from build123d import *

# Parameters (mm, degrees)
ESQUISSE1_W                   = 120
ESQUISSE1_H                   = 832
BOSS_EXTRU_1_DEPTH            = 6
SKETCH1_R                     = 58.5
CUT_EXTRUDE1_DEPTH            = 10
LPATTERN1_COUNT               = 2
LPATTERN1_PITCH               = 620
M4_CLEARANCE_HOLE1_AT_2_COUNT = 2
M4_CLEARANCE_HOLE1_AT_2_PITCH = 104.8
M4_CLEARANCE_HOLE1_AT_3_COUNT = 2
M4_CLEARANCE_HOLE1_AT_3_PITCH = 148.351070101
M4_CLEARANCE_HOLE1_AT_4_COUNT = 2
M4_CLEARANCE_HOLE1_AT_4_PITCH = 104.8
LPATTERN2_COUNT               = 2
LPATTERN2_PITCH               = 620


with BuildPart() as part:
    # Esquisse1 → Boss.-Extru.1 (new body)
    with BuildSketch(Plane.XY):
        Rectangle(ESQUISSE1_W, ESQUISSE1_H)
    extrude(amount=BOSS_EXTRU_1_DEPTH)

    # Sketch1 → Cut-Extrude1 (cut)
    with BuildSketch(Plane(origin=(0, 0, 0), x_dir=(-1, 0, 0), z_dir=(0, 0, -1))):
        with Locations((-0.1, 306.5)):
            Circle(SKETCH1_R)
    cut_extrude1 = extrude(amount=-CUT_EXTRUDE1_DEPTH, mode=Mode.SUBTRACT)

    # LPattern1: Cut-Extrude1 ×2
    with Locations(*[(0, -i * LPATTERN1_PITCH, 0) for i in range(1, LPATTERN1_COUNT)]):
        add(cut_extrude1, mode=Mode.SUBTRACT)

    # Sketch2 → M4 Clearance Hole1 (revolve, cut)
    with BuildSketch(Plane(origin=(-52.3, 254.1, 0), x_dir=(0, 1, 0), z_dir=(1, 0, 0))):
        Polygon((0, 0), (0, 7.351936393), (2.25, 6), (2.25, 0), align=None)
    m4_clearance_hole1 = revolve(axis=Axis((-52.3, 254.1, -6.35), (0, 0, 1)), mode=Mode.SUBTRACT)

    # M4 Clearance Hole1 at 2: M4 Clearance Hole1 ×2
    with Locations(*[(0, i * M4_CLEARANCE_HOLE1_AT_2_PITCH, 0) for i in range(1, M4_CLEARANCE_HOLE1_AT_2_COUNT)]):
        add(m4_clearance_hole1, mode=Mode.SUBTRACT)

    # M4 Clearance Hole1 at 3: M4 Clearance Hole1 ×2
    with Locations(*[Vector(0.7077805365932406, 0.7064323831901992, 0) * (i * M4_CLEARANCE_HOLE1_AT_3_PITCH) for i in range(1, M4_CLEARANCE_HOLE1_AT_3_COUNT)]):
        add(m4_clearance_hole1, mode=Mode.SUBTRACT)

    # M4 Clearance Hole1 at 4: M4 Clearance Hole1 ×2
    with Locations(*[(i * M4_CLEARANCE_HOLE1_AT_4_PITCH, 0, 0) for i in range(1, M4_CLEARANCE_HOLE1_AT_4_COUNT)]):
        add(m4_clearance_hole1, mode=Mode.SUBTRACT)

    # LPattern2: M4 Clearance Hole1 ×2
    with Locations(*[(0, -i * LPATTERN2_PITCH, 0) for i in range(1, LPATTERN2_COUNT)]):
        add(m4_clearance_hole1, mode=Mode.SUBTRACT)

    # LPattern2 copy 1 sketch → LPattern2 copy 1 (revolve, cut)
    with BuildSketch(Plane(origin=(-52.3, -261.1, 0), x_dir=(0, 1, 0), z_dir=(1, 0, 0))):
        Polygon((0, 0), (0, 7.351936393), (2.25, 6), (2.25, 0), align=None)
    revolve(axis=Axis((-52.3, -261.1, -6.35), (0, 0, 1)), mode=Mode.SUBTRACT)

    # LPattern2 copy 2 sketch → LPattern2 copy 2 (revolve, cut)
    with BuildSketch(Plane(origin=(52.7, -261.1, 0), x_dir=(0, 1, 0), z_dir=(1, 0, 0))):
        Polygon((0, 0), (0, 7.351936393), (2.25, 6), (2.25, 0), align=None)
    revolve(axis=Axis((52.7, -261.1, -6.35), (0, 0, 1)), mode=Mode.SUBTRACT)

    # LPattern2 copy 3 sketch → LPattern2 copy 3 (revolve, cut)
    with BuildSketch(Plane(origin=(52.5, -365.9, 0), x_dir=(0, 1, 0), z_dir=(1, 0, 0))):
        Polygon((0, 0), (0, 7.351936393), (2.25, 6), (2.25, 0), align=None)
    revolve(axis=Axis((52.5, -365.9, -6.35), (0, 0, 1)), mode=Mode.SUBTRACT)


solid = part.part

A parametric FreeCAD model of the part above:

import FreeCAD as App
import Part
import Sketcher

V = App.Vector
Q = App.Units.Quantity

doc = App.newDocument("Part")
body = doc.addObject("PartDesign::Body", "Body")

# Sketch on XY plane
sketch1 = body.newObject("Sketcher::SketchObject", "Sketch")
sketch1.AttachmentSupport = (doc.getObject("XY_Plane"), [""])
sketch1.MapMode = "FlatFace"
sketch1.addGeometry(Part.LineSegment(V(-60, 416, 0), V(-60, -416, 0)), False)
sketch1.addGeometry(Part.LineSegment(V(-60, -416, 0), V(60, -416, 0)), False)
sketch1.addGeometry(Part.LineSegment(V(60, -416, 0), V(60, 416, 0)), False)
sketch1.addGeometry(Part.LineSegment(V(60, 416, 0), V(-60, 416, 0)), False)
sketch1.addConstraint(Sketcher.Constraint("Coincident", 0, 2, 1, 1))
sketch1.addConstraint(Sketcher.Constraint("Coincident", 1, 2, 2, 1))
sketch1.addConstraint(Sketcher.Constraint("Coincident", 2, 2, 3, 1))
sketch1.addConstraint(Sketcher.Constraint("Coincident", 3, 2, 0, 1))
sketch1.addConstraint(Sketcher.Constraint("Vertical", 0))
sketch1.addConstraint(Sketcher.Constraint("Horizontal", 1))
sketch1.addConstraint(Sketcher.Constraint("Vertical", 2))
sketch1.addConstraint(Sketcher.Constraint("Horizontal", 3))
sketch1.addConstraint(Sketcher.Constraint("Symmetric", 0, 2, 2, 2, -1, 1))
sketch1.addConstraint(Sketcher.Constraint("DistanceX", 1, 1, 1, 2, 120.0))
sketch1.addConstraint(Sketcher.Constraint("DistanceY", 0, 2, 0, 1, 832.0))
pad1 = body.newObject("PartDesign::Pad", "Pad")
pad1.Profile = sketch1
pad1.Length = 6

# Sketch on XY plane
sketch2 = body.newObject("Sketcher::SketchObject", "Sketch001")
sketch2.AttachmentSupport = (doc.getObject("XY_Plane"), [""])
sketch2.MapMode = "FlatFace"
sketch2.addGeometry(Part.Circle(V(0, 306, 0), V(0, 0, 1), 58), False)
sketch2.addConstraint(Sketcher.Constraint("Diameter", 0, 117.0))
sketch2.addConstraint(Sketcher.Constraint("DistanceX", -1, 1, 0, 3, 0.1))
sketch2.addConstraint(Sketcher.Constraint("DistanceY", -1, 1, 0, 3, 306.5))
pocket1 = body.newObject("PartDesign::Pocket", "Pocket")
pocket1.Profile = sketch2
pocket1.Length = 10
pocket1.Reversed = True
doc.recompute()

linearpattern = body.newObject("PartDesign::LinearPattern", "LinearPattern")
linearpattern.Originals = [pocket1]
linearpattern.Direction = (doc.getObject("Y_Axis"), [""])
linearpattern.Mode = "offset"
linearpattern.Offset = 620
linearpattern.Occurrences = 2
linearpattern.Reversed = True
body.Tip = linearpattern

# Sketch on YZ plane
sketch3 = body.newObject("Sketcher::SketchObject", "Sketch002")
sketch3.AttachmentSupport = (doc.getObject("YZ_Plane"), [""])
sketch3.MapMode = "FlatFace"
sketch3.AttachmentOffset = App.Placement(V(0, 0, -52.3), App.Rotation())
sketch3.addGeometry(Part.LineSegment(V(254.1, 7.4, 0), V(254.1, 0, 0)), False)
sketch3.addGeometry(Part.LineSegment(V(254.1, 0, 0), V(256.4, 0, 0)), False)
sketch3.addGeometry(Part.LineSegment(V(256.4, 0, 0), V(256.4, 6, 0)), False)
sketch3.addGeometry(Part.LineSegment(V(256.4, 6, 0), V(254.1, 7.4, 0)), False)
sketch3.addGeometry(Part.LineSegment(V(254.1, 0, 0), V(254.1, 7.4, 0)), True)  # axis
sketch3.addConstraint(Sketcher.Constraint("Coincident", 0, 2, 1, 1))
sketch3.addConstraint(Sketcher.Constraint("Coincident", 1, 2, 2, 1))
sketch3.addConstraint(Sketcher.Constraint("Coincident", 2, 2, 3, 1))
sketch3.addConstraint(Sketcher.Constraint("Coincident", 3, 2, 0, 1))
sketch3.addConstraint(Sketcher.Constraint("Vertical", 0))
sketch3.addConstraint(Sketcher.Constraint("Horizontal", 1))
sketch3.addConstraint(Sketcher.Constraint("Vertical", 2))
sketch3.addConstraint(Sketcher.Constraint("Vertical", 4))
sketch3.addConstraint(Sketcher.Constraint("Coincident", 4, 1, 0, 2))
sketch3.addConstraint(Sketcher.Constraint("PointOnObject", 0, 2, -1))
sketch3.addConstraint(Sketcher.Constraint("Equal", 0, 4))
sketch3.addConstraint(Sketcher.Constraint("DistanceY", 2, 1, 2, 2, 6.0))
sketch3.addConstraint(Sketcher.Constraint("Angle", 3, Q("149 deg")))
sketch3.addConstraint(Sketcher.Constraint("DistanceX", 1, 1, 1, 2, 2.25))
sketch3.addConstraint(Sketcher.Constraint("DistanceX", -1, 1, 0, 2, 254.1))
groove = body.newObject("PartDesign::Groove", "Groove")
groove.Profile = sketch3
groove.ReferenceAxis = (sketch3, ["Axis0"])
groove.Angle = 360
doc.recompute()

linearpattern2 = body.newObject("PartDesign::LinearPattern", "LinearPattern001")
linearpattern2.Originals = [groove]
linearpattern2.Direction = (doc.getObject("Y_Axis"), [""])
linearpattern2.Mode = "offset"
linearpattern2.Offset = 104.8
linearpattern2.Occurrences = 2
body.Tip = linearpattern2
doc.recompute()

datumline = body.newObject("PartDesign::Line", "DatumLine")
datumline.Placement = App.Placement(V(0, 0, 0), App.Rotation(V(0, 0, 1), V(0.707780537, 0.706432383, 0)))
linearpattern3 = body.newObject("PartDesign::LinearPattern", "LinearPattern002")
linearpattern3.Originals = [groove]
linearpattern3.Direction = (datumline, [""])
linearpattern3.Mode = "offset"
linearpattern3.Offset = 148.35107
linearpattern3.Occurrences = 2
body.Tip = linearpattern3
doc.recompute()

linearpattern4 = body.newObject("PartDesign::LinearPattern", "LinearPattern003")
linearpattern4.Originals = [groove]
linearpattern4.Direction = (doc.getObject("X_Axis"), [""])
linearpattern4.Mode = "offset"
linearpattern4.Offset = 104.8
linearpattern4.Occurrences = 2
body.Tip = linearpattern4
doc.recompute()

linearpattern5 = body.newObject("PartDesign::LinearPattern", "LinearPattern004")
linearpattern5.Originals = [groove]
linearpattern5.Direction = (doc.getObject("Y_Axis"), [""])
linearpattern5.Mode = "offset"
linearpattern5.Offset = 620
linearpattern5.Occurrences = 2
linearpattern5.Reversed = True
body.Tip = linearpattern5

# Sketch on YZ plane
sketch4 = body.newObject("Sketcher::SketchObject", "Sketch003")
sketch4.AttachmentSupport = (doc.getObject("YZ_Plane"), [""])
sketch4.MapMode = "FlatFace"
sketch4.AttachmentOffset = App.Placement(V(0, 0, -52.3), App.Rotation())
sketch4.addGeometry(Part.LineSegment(V(-261.1, 7.4, 0), V(-261.1, 0, 0)), False)
sketch4.addGeometry(Part.LineSegment(V(-261.1, 0, 0), V(-258.9, 0, 0)), False)
sketch4.addGeometry(Part.LineSegment(V(-258.9, 0, 0), V(-258.9, 6, 0)), False)
sketch4.addGeometry(Part.LineSegment(V(-258.9, 6, 0), V(-261.1, 7.4, 0)), False)
sketch4.addGeometry(Part.LineSegment(V(-261.1, 0, 0), V(-261.1, 7.4, 0)), True)  # axis
sketch4.addConstraint(Sketcher.Constraint("Coincident", 0, 2, 1, 1))
sketch4.addConstraint(Sketcher.Constraint("Coincident", 1, 2, 2, 1))
sketch4.addConstraint(Sketcher.Constraint("Coincident", 2, 2, 3, 1))
sketch4.addConstraint(Sketcher.Constraint("Coincident", 3, 2, 0, 1))
sketch4.addConstraint(Sketcher.Constraint("Vertical", 0))
sketch4.addConstraint(Sketcher.Constraint("Horizontal", 1))
sketch4.addConstraint(Sketcher.Constraint("Vertical", 2))
sketch4.addConstraint(Sketcher.Constraint("Vertical", 4))
sketch4.addConstraint(Sketcher.Constraint("Coincident", 4, 1, 0, 2))
sketch4.addConstraint(Sketcher.Constraint("PointOnObject", 0, 2, -1))
sketch4.addConstraint(Sketcher.Constraint("Equal", 0, 4))
sketch4.addConstraint(Sketcher.Constraint("DistanceY", 2, 1, 2, 2, 6.0))
sketch4.addConstraint(Sketcher.Constraint("Angle", 3, Q("149 deg")))
sketch4.addConstraint(Sketcher.Constraint("DistanceX", 1, 1, 1, 2, 2.25))
sketch4.addConstraint(Sketcher.Constraint("DistanceX", 0, 2, -1, 1, 261.1))
groove2 = body.newObject("PartDesign::Groove", "Groove001")
groove2.Profile = sketch4
groove2.ReferenceAxis = (sketch4, ["Axis0"])
groove2.Angle = 360

# Sketch on YZ plane
sketch5 = body.newObject("Sketcher::SketchObject", "Sketch004")
sketch5.AttachmentSupport = (doc.getObject("YZ_Plane"), [""])
sketch5.MapMode = "FlatFace"
sketch5.AttachmentOffset = App.Placement(V(0, 0, 52.7), App.Rotation())
sketch5.addGeometry(Part.LineSegment(V(-261.1, 7.4, 0), V(-261.1, 0, 0)), False)
sketch5.addGeometry(Part.LineSegment(V(-261.1, 0, 0), V(-258.9, 0, 0)), False)
sketch5.addGeometry(Part.LineSegment(V(-258.9, 0, 0), V(-258.9, 6, 0)), False)
sketch5.addGeometry(Part.LineSegment(V(-258.9, 6, 0), V(-261.1, 7.4, 0)), False)
sketch5.addGeometry(Part.LineSegment(V(-261.1, 0, 0), V(-261.1, 7.4, 0)), True)  # axis
sketch5.addConstraint(Sketcher.Constraint("Coincident", 0, 2, 1, 1))
sketch5.addConstraint(Sketcher.Constraint("Coincident", 1, 2, 2, 1))
sketch5.addConstraint(Sketcher.Constraint("Coincident", 2, 2, 3, 1))
sketch5.addConstraint(Sketcher.Constraint("Coincident", 3, 2, 0, 1))
sketch5.addConstraint(Sketcher.Constraint("Vertical", 0))
sketch5.addConstraint(Sketcher.Constraint("Horizontal", 1))
sketch5.addConstraint(Sketcher.Constraint("Vertical", 2))
sketch5.addConstraint(Sketcher.Constraint("Vertical", 4))
sketch5.addConstraint(Sketcher.Constraint("Coincident", 4, 1, 0, 2))
sketch5.addConstraint(Sketcher.Constraint("PointOnObject", 0, 2, -1))
sketch5.addConstraint(Sketcher.Constraint("Equal", 0, 4))
sketch5.addConstraint(Sketcher.Constraint("DistanceY", 2, 1, 2, 2, 6.0))
sketch5.addConstraint(Sketcher.Constraint("Angle", 3, Q("149 deg")))
sketch5.addConstraint(Sketcher.Constraint("DistanceX", 1, 1, 1, 2, 2.25))
sketch5.addConstraint(Sketcher.Constraint("DistanceX", 0, 2, -1, 1, 261.1))
groove3 = body.newObject("PartDesign::Groove", "Groove002")
groove3.Profile = sketch5
groove3.ReferenceAxis = (sketch5, ["Axis0"])
groove3.Angle = 360

# Sketch on YZ plane
sketch6 = body.newObject("Sketcher::SketchObject", "Sketch005")
sketch6.AttachmentSupport = (doc.getObject("YZ_Plane"), [""])
sketch6.MapMode = "FlatFace"
sketch6.AttachmentOffset = App.Placement(V(0, 0, 52.5), App.Rotation())
sketch6.addGeometry(Part.LineSegment(V(-365.9, 7.4, 0), V(-365.9, 0, 0)), False)
sketch6.addGeometry(Part.LineSegment(V(-365.9, 0, 0), V(-363.6, 0, 0)), False)
sketch6.addGeometry(Part.LineSegment(V(-363.6, 0, 0), V(-363.6, 6, 0)), False)
sketch6.addGeometry(Part.LineSegment(V(-363.6, 6, 0), V(-365.9, 7.4, 0)), False)
sketch6.addGeometry(Part.LineSegment(V(-365.9, 0, 0), V(-365.9, 7.4, 0)), True)  # axis
sketch6.addConstraint(Sketcher.Constraint("Coincident", 0, 2, 1, 1))
sketch6.addConstraint(Sketcher.Constraint("Coincident", 1, 2, 2, 1))
sketch6.addConstraint(Sketcher.Constraint("Coincident", 2, 2, 3, 1))
sketch6.addConstraint(Sketcher.Constraint("Coincident", 3, 2, 0, 1))
sketch6.addConstraint(Sketcher.Constraint("Vertical", 0))
sketch6.addConstraint(Sketcher.Constraint("Horizontal", 1))
sketch6.addConstraint(Sketcher.Constraint("Vertical", 2))
sketch6.addConstraint(Sketcher.Constraint("Vertical", 4))
sketch6.addConstraint(Sketcher.Constraint("Coincident", 4, 1, 0, 2))
sketch6.addConstraint(Sketcher.Constraint("PointOnObject", 0, 2, -1))
sketch6.addConstraint(Sketcher.Constraint("Equal", 0, 4))
sketch6.addConstraint(Sketcher.Constraint("DistanceY", 2, 1, 2, 2, 6.0))
sketch6.addConstraint(Sketcher.Constraint("Angle", 3, Q("149 deg")))
sketch6.addConstraint(Sketcher.Constraint("DistanceX", 1, 1, 1, 2, 2.25))
sketch6.addConstraint(Sketcher.Constraint("DistanceX", 0, 2, -1, 1, 365.9))
groove4 = body.newObject("PartDesign::Groove", "Groove003")
groove4.Profile = sketch6
groove4.ReferenceAxis = (sketch6, ["Axis0"])
groove4.Angle = 360

doc.recompute()
